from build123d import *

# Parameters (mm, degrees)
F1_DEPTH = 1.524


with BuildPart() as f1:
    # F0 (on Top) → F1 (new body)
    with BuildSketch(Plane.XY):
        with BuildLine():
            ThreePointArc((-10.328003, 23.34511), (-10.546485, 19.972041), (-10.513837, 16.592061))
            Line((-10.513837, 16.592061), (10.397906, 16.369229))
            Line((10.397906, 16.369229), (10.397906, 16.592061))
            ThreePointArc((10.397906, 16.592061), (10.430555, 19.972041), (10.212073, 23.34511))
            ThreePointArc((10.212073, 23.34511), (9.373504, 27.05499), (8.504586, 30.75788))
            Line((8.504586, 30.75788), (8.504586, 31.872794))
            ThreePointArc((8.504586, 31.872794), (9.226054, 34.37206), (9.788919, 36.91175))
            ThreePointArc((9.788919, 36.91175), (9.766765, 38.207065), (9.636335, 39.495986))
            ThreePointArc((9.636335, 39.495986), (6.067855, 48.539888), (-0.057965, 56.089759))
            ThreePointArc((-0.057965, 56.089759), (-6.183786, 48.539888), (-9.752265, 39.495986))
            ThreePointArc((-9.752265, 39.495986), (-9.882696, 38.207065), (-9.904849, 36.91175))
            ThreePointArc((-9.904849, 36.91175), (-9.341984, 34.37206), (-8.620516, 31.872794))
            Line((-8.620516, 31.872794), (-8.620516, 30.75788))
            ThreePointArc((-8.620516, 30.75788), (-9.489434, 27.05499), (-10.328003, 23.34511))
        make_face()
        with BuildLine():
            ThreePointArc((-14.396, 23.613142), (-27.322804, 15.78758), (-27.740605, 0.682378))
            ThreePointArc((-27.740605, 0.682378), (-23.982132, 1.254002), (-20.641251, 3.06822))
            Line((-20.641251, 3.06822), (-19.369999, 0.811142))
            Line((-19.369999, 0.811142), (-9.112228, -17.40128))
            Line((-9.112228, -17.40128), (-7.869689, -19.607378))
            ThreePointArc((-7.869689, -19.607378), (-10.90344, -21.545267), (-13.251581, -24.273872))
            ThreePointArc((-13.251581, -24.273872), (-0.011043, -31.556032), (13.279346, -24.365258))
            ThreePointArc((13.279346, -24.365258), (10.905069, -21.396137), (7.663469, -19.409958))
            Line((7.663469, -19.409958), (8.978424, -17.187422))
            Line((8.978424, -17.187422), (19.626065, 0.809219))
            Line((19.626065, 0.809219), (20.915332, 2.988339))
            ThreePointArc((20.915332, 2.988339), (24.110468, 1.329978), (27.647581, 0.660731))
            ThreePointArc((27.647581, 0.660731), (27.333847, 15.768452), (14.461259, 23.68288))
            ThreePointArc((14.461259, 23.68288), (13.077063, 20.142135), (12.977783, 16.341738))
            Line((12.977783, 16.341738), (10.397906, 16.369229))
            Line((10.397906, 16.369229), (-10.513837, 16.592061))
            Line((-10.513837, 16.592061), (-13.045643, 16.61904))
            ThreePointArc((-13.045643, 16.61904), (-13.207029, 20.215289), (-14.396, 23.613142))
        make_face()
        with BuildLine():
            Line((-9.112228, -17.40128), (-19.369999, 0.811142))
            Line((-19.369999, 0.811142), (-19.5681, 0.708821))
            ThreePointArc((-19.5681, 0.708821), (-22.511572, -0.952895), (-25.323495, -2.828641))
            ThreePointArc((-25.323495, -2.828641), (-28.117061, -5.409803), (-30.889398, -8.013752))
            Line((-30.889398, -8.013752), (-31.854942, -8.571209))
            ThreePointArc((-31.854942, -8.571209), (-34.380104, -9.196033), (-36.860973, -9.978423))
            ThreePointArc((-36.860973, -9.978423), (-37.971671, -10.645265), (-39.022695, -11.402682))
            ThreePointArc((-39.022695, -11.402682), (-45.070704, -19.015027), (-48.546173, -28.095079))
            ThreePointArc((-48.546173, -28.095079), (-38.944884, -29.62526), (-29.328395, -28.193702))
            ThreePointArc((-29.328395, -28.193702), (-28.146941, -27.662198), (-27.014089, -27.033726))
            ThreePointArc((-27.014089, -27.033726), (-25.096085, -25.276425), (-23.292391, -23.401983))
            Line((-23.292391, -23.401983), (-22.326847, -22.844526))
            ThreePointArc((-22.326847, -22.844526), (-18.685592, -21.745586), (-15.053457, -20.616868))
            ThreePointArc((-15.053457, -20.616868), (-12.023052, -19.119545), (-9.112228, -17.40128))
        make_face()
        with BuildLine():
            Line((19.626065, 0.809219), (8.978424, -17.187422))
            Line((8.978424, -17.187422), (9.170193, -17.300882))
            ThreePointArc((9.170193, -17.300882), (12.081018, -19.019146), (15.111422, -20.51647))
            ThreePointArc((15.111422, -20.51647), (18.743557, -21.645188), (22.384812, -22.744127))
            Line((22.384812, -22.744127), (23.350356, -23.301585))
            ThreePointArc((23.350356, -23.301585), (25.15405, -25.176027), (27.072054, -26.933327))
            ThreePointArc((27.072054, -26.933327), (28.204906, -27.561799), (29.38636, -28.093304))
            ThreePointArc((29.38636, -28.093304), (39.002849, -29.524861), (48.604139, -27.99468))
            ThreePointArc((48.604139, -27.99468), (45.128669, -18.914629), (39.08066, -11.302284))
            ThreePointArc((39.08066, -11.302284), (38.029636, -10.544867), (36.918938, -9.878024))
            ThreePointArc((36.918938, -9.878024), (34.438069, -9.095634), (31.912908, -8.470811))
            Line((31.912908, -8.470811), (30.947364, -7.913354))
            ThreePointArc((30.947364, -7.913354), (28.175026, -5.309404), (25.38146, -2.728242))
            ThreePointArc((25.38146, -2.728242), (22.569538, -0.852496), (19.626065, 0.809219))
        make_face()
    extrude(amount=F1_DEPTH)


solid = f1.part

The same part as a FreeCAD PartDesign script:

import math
import FreeCAD as App
import Part
import Sketcher
Q = App.Units.Quantity

doc = App.newDocument("Part")
body = doc.addObject("PartDesign::Body", "Body")

# Sketch on XY plane
sketch1 = doc.addObject("Sketcher::SketchObject", "Sketch")
body.addObject(sketch1)
sketch1.AttachmentSupport = (doc.XY_Plane, [""])
sketch1.MapMode = "FlatFace"
sketch1.addGeometry(Part.ArcOfCircle(Part.Circle(App.Vector(34.914766, 18.721014, 0), App.Vector(0, 0, 1), 45.478461), math.radians(174.164274), math.radians(182.68313)), False)
sketch1.addGeometry(Part.LineSegment(App.Vector(-10.513837, 16.592061, 0), App.Vector(-13.045643, 16.61904, 0)), False)
sketch1.addGeometry(Part.ArcOfCircle(Part.Circle(App.Vector(-25.365001, 17.86794, 0), App.Vector(0, 0, 1), 12.382501), math.radians(-5.788698), math.radians(27.644069)), False)
sketch1.addGeometry(Part.ArcOfCircle(Part.Circle(App.Vector(-13.686723, 7.852035, 0), App.Vector(0, 0, 1), 15.777058), math.radians(92.576669), math.radians(207.028626)), False)
sketch1.addGeometry(Part.ArcOfCircle(Part.Circle(App.Vector(-27.494308, 11.704895, 0), App.Vector(0, 0, 1), 11.025268), math.radians(-91.280057), math.radians(-51.568589)), False)
sketch1.addGeometry(Part.LineSegment(App.Vector(-20.641251, 3.06822, 0), App.Vector(-19.369999, 0.811142, 0)), False)
sketch1.addGeometry(Part.LineSegment(App.Vector(-19.369999, 0.811142, 0), App.Vector(-19.5681, 0.708821, 0)), False)
sketch1.addGeometry(Part.ArcOfCircle(Part.Circle(App.Vector(1.30249, -39.698, 0), App.Vector(0, 0, 1), 45.478486), math.radians(117.316876), math.radians(125.835727)), False)
sketch1.addGeometry(Part.ArcOfCircle(Part.Circle(App.Vector(288.507466, -345.287078, 0), App.Vector(0, 0, 1), 464.507969), math.radians(132.50233), math.radians(133.440628)), False)
sketch1.addGeometry(Part.LineSegment(App.Vector(-30.889398, -8.013752, 0), App.Vector(-31.854942, -8.571209, 0)), False)
sketch1.addGeometry(Part.ArcOfCircle(Part.Circle(App.Vector(-23.191889, -48.99705, 0), App.Vector(0, 0, 1), 41.343646), math.radians(102.095262), math.radians(109.306481)), False)
sketch1.addGeometry(Part.ArcOfCircle(Part.Circle(App.Vector(-29.458606, -23.566286, 0), App.Vector(0, 0, 1), 15.473366), math.radians(118.580569), math.radians(128.177523)), False)
sketch1.addGeometry(Part.ArcOfCircle(Part.Circle(App.Vector(-17.349656, -34.830659, 0), App.Vector(0, 0, 1), 31.915368), math.radians(132.771673), math.radians(167.816399)), False)
sketch1.addGeometry(Part.ArcOfCircle(Part.Circle(App.Vector(-38.781101, 2.28968, 0), App.Vector(0, 0, 1), 31.91536), math.radians(-107.816398), math.radians(-72.771665)), False)
sketch1.addGeometry(Part.ArcOfCircle(Part.Circle(App.Vector(-35.080299, -13.829229, 0), App.Vector(0, 0, 1), 15.473283), math.radians(-68.177568), math.radians(-58.580561)), False)
sketch1.addGeometry(Part.ArcOfCircle(Part.Circle(App.Vector(-53.970734, 4.313423, 0), App.Vector(0, 0, 1), 41.343735), math.radians(-49.306468), math.radians(-42.095266)), False)
sketch1.addGeometry(Part.LineSegment(App.Vector(-23.292391, -23.401983, 0), App.Vector(-22.326847, -22.844526, 0)), False)
sketch1.addGeometry(Part.ArcOfCircle(Part.Circle(App.Vector(-154.716692, 422.401247, 0), App.Vector(0, 0, 1), 464.511431), math.radians(-73.440625), math.radians(-72.502334)), False)
sketch1.addGeometry(Part.ArcOfCircle(Part.Circle(App.Vector(-33.670099, 20.87627, 0), App.Vector(0, 0, 1), 45.478125), math.radians(-65.835754), math.radians(-57.316835)), False)
sketch1.addGeometry(Part.LineSegment(App.Vector(-9.112228, -17.40128, 0), App.Vector(-7.869689, -19.607378, 0)), False)
sketch1.addGeometry(Part.ArcOfCircle(Part.Circle(App.Vector(-2.791593, -30.900702, 0), App.Vector(0, 0, 1), 12.382496), math.radians(114.21129), math.radians(147.644071)), False)
sketch1.addGeometry(Part.ArcOfCircle(Part.Circle(App.Vector(0.0433, -15.779067, 0), App.Vector(0, 0, 1), 15.777059), math.radians(-147.423332), math.radians(-32.971378)), False)
sketch1.addGeometry(Part.ArcOfCircle(Part.Circle(App.Vector(3.61042, -29.663214, 0), App.Vector(0, 0, 1), 11.025265), math.radians(28.719938), math.radians(68.431419)), False)
sketch1.addGeometry(Part.LineSegment(App.Vector(7.663469, -19.409958, 0), App.Vector(8.978424, -17.187422, 0)), False)
sketch1.addGeometry(Part.LineSegment(App.Vector(8.978424, -17.187422, 0), App.Vector(9.170193, -17.300882, 0)), False)
sketch1.addGeometry(Part.ArcOfCircle(Part.Circle(App.Vector(33.728297, 20.977099, 0), App.Vector(0, 0, 1), 45.478614), math.radians(-122.683119), math.radians(-114.164292)), False)
sketch1.addGeometry(Part.ArcOfCircle(Part.Circle(App.Vector(154.770415, 422.487993, 0), App.Vector(0, 0, 1), 464.497135), math.radians(-107.497673), math.radians(-106.559353)), False)
sketch1.addGeometry(Part.LineSegment(App.Vector(22.384812, -22.744127, 0), App.Vector(23.350356, -23.301585, 0)), False)
sketch1.addGeometry(Part.ArcOfCircle(Part.Circle(App.Vector(54.028561, 4.413688, 0), App.Vector(0, 0, 1), 41.343544), math.radians(-137.904743), math.radians(-130.693507)), False)
sketch1.addGeometry(Part.ArcOfCircle(Part.Circle(App.Vector(35.138328, -13.728714, 0), App.Vector(0, 0, 1), 15.473415), math.radians(-121.419419), math.radians(-111.822492)), False)
sketch1.addGeometry(Part.ArcOfCircle(Part.Circle(App.Vector(38.839064, 2.390092, 0), App.Vector(0, 0, 1), 31.915374), math.radians(-107.228326), math.radians(-72.183605)), False)
sketch1.addGeometry(Part.ArcOfCircle(Part.Circle(App.Vector(17.40761, -34.730269, 0), App.Vector(0, 0, 1), 31.915381), math.radians(12.183612), math.radians(47.228323)), False)
sketch1.addGeometry(Part.ArcOfCircle(Part.Circle(App.Vector(29.516498, -23.46599, 0), App.Vector(0, 0, 1), 15.473492), math.radians(51.822496), math.radians(61.419375)), False)
sketch1.addGeometry(Part.ArcOfCircle(Part.Circle(App.Vector(23.249913, -48.896466, 0), App.Vector(0, 0, 1), 41.343452), math.radians(70.693511), math.radians(77.904762)), False)
sketch1.addGeometry(Part.LineSegment(App.Vector(31.912908, -8.470811, 0), App.Vector(30.947364, -7.913354, 0)), False)
sketch1.addGeometry(Part.ArcOfCircle(Part.Circle(App.Vector(-288.449111, -345.186258, 0), App.Vector(0, 0, 1), 464.507395), math.radians(46.559371), math.radians(47.497671)), False)
sketch1.addGeometry(Part.ArcOfCircle(Part.Circle(App.Vector(-1.244336, -39.597305, 0), App.Vector(0, 0, 1), 45.478136), math.radians(54.164247), math.radians(62.683164)), False)
sketch1.addGeometry(Part.LineSegment(App.Vector(19.626065, 0.809219, 0), App.Vector(20.915332, 2.988339, 0)), False)
sketch1.addGeometry(Part.ArcOfCircle(Part.Circle(App.Vector(28.156586, 13.032753, 0), App.Vector(0, 0, 1), 12.382488), math.radians(-125.78872), math.radians(-92.355913)), False)
sketch1.addGeometry(Part.ArcOfCircle(Part.Circle(App.Vector(13.643422, 7.927032, 0), App.Vector(0, 0, 1), 15.777059), math.radians(-27.423326), math.radians(87.028622)), False)
sketch1.addGeometry(Part.ArcOfCircle(Part.Circle(App.Vector(23.883873, 17.958327, 0), App.Vector(0, 0, 1), 11.025251), math.radians(148.719922), math.radians(188.431452)), False)
sketch1.addGeometry(Part.LineSegment(App.Vector(12.977783, 16.341738, 0), App.Vector(10.397906, 16.369229, 0)), False)
sketch1.addGeometry(Part.LineSegment(App.Vector(10.397906, 16.369229, 0), App.Vector(10.397906, 16.592061, 0)), False)
sketch1.addGeometry(Part.ArcOfCircle(Part.Circle(App.Vector(-35.030515, 18.721026, 0), App.Vector(0, 0, 1), 45.47828), math.radians(-2.683155), math.radians(5.835734)), False)
sketch1.addGeometry(Part.ArcOfCircle(Part.Circle(App.Vector(-443.2803, -77.211092, 0), App.Vector(0, 0, 1), 464.507139), math.radians(12.502332), math.radians(13.440632)), False)
sketch1.addGeometry(Part.LineSegment(App.Vector(8.504586, 30.75788, 0), App.Vector(8.504586, 31.872794, 0)), False)
sketch1.addGeometry(Part.ArcOfCircle(Part.Circle(App.Vector(-30.836658, 44.583275, 0), App.Vector(0, 0, 1), 41.343558), math.radians(-17.904754), math.radians(-10.693521)), False)
sketch1.addGeometry(Part.ArcOfCircle(Part.Circle(App.Vector(-5.679862, 37.295032, 0), App.Vector(0, 0, 1), 15.473529), math.radians(-1.41937), math.radians(8.177485)), False)
sketch1.addGeometry(Part.ArcOfCircle(Part.Circle(App.Vector(-21.489423, 32.440565, 0), App.Vector(0, 0, 1), 31.915385), math.radians(12.771679), math.radians(47.816387)), False)
sketch1.addGeometry(Part.ArcOfCircle(Part.Circle(App.Vector(21.373477, 32.440574, 0), App.Vector(0, 0, 1), 31.915367), math.radians(132.183603), math.radians(167.228331)), False)
sketch1.addGeometry(Part.ArcOfCircle(Part.Circle(App.Vector(5.563648, 37.295048, 0), App.Vector(0, 0, 1), 15.473245), math.radians(171.822427), math.radians(181.419459)), False)
sketch1.addGeometry(Part.ArcOfCircle(Part.Circle(App.Vector(30.720728, 44.583275, 0), App.Vector(0, 0, 1), 41.343558), math.radians(-169.306479), math.radians(-162.095246)), False)
sketch1.addGeometry(Part.LineSegment(App.Vector(-8.620516, 31.872794, 0), App.Vector(-8.620516, 30.75788, 0)), False)
sketch1.addGeometry(Part.ArcOfCircle(Part.Circle(App.Vector(443.16437, -77.211092, 0), App.Vector(0, 0, 1), 464.507139), math.radians(166.559368), math.radians(167.497668)), False)
sketch1.addConstraint(Sketcher.Constraint("Coincident", 0, 2, 1, 1))
sketch1.addConstraint(Sketcher.Constraint("Coincident", 1, 2, 2, 1))
sketch1.addConstraint(Sketcher.Constraint("Coincident", 2, 2, 3, 1))
sketch1.addConstraint(Sketcher.Constraint("Coincident", 3, 2, 4, 1))
sketch1.addConstraint(Sketcher.Constraint("Coincident", 4, 2, 5, 1))
sketch1.addConstraint(Sketcher.Constraint("Coincident", 5, 2, 6, 1))
sketch1.addConstraint(Sketcher.Constraint("Coincident", 6, 2, 7, 1))
sketch1.addConstraint(Sketcher.Constraint("Coincident", 7, 2, 8, 1))
sketch1.addConstraint(Sketcher.Constraint("Coincident", 8, 2, 9, 1))
sketch1.addConstraint(Sketcher.Constraint("Coincident", 9, 2, 10, 1))
sketch1.addConstraint(Sketcher.Constraint("Coincident", 10, 2, 11, 1))
sketch1.addConstraint(Sketcher.Constraint("Coincident", 11, 2, 12, 1))
sketch1.addConstraint(Sketcher.Constraint("Coincident", 12, 2, 13, 1))
sketch1.addConstraint(Sketcher.Constraint("Coincident", 13, 2, 14, 1))
sketch1.addConstraint(Sketcher.Constraint("Coincident", 14, 2, 15, 1))
sketch1.addConstraint(Sketcher.Constraint("Coincident", 15, 2, 16, 1))
sketch1.addConstraint(Sketcher.Constraint("Coincident", 16, 2, 17, 1))
sketch1.addConstraint(Sketcher.Constraint("Coincident", 17, 2, 18, 1))
sketch1.addConstraint(Sketcher.Constraint("Coincident", 18, 2, 19, 1))
sketch1.addConstraint(Sketcher.Constraint("Coincident", 19, 2, 20, 1))
sketch1.addConstraint(Sketcher.Constraint("Coincident", 20, 2, 21, 1))
sketch1.addConstraint(Sketcher.Constraint("Coincident", 21, 2, 22, 1))
sketch1.addConstraint(Sketcher.Constraint("Coincident", 22, 2, 23, 1))
sketch1.addConstraint(Sketcher.Constraint("Coincident", 23, 2, 24, 1))
sketch1.addConstraint(Sketcher.Constraint("Coincident", 24, 2, 25, 1))
sketch1.addConstraint(Sketcher.Constraint("Coincident", 25, 2, 26, 1))
sketch1.addConstraint(Sketcher.Constraint("Coincident", 26, 2, 27, 1))
sketch1.addConstraint(Sketcher.Constraint("Coincident", 27, 2, 28, 1))
sketch1.addConstraint(Sketcher.Constraint("Coincident", 28, 2, 29, 1))
sketch1.addConstraint(Sketcher.Constraint("Coincident", 29, 2, 30, 1))
sketch1.addConstraint(Sketcher.Constraint("Coincident", 30, 2, 31, 1))
sketch1.addConstraint(Sketcher.Constraint("Coincident", 31, 2, 32, 1))
sketch1.addConstraint(Sketcher.Constraint("Coincident", 32, 2, 33, 1))
sketch1.addConstraint(Sketcher.Constraint("Coincident", 33, 2, 34, 1))
sketch1.addConstraint(Sketcher.Constraint("Coincident", 34, 2, 35, 1))
sketch1.addConstraint(Sketcher.Constraint("Coincident", 35, 2, 36, 1))
sketch1.addConstraint(Sketcher.Constraint("Coincident", 36, 2, 37, 1))
sketch1.addConstraint(Sketcher.Constraint("Coincident", 37, 2, 38, 1))
sketch1.addConstraint(Sketcher.Constraint("Coincident", 38, 2, 39, 1))
sketch1.addConstraint(Sketcher.Constraint("Coincident", 39, 2, 40, 1))
sketch1.addConstraint(Sketcher.Constraint("Coincident", 40, 2, 41, 1))
sketch1.addConstraint(Sketcher.Constraint("Coincident", 41, 2, 42, 1))
sketch1.addConstraint(Sketcher.Constraint("Coincident", 42, 2, 43, 1))
sketch1.addConstraint(Sketcher.Constraint("Coincident", 43, 2, 44, 1))
sketch1.addConstraint(Sketcher.Constraint("Coincident", 44, 2, 45, 1))
sketch1.addConstraint(Sketcher.Constraint("Coincident", 45, 2, 46, 1))
sketch1.addConstraint(Sketcher.Constraint("Coincident", 46, 2, 47, 1))
sketch1.addConstraint(Sketcher.Constraint("Coincident", 47, 2, 48, 1))
sketch1.addConstraint(Sketcher.Constraint("Coincident", 48, 2, 49, 1))
sketch1.addConstraint(Sketcher.Constraint("Coincident", 49, 2, 50, 1))
sketch1.addConstraint(Sketcher.Constraint("Coincident", 50, 2, 51, 1))
sketch1.addConstraint(Sketcher.Constraint("Coincident", 51, 2, 52, 1))
sketch1.addConstraint(Sketcher.Constraint("Coincident", 52, 2, 53, 1))
sketch1.addConstraint(Sketcher.Constraint("Coincident", 53, 2, 0, 1))
sketch1.addConstraint(Sketcher.Constraint("Vertical", 42))
sketch1.addConstraint(Sketcher.Constraint("Vertical", 45))
sketch1.addConstraint(Sketcher.Constraint("Vertical", 52))
sketch1.addConstraint(Sketcher.Constraint("Radius", 2, Q("0.4875001 in")))
sketch1.addConstraint(Sketcher.Constraint("Radius", 20, Q("0.4874999 in")))
sketch1.addConstraint(Sketcher.Constraint("Radius", 0, 45.478461))
sketch1.addConstraint(Sketcher.Constraint("Radius", 3, 15.777058))
sketch1.addConstraint(Sketcher.Constraint("Radius", 4, 11.025268))
sketch1.addConstraint(Sketcher.Constraint("Radius", 8, 464.507969))
sketch1.addConstraint(Sketcher.Constraint("Radius", 12, 31.915368))
sketch1.addConstraint(Sketcher.Constraint("Radius", 13, 31.91536))
sketch1.addConstraint(Sketcher.Constraint("Radius", 17, 464.511431))
sketch1.addConstraint(Sketcher.Constraint("Radius", 21, 15.777059))
sketch1.addConstraint(Sketcher.Constraint("Radius", 31, 31.915381))
sketch1.addConstraint(Sketcher.Constraint("Radius", 32, 15.473492))
sketch1.addConstraint(Sketcher.Constraint("Radius", 39, 15.777059))
sketch1.addConstraint(Sketcher.Constraint("Radius", 40, 11.025251))
sketch1.addConstraint(Sketcher.Constraint("Radius", 43, 45.47828))
sketch1.addConstraint(Sketcher.Constraint("Radius", 44, 464.507139))
sketch1.addConstraint(Sketcher.Constraint("Radius", 46, 41.343558))
sketch1.addConstraint(Sketcher.Constraint("Radius", 47, 15.473529))
sketch1.addConstraint(Sketcher.Constraint("Radius", 51, 41.343558))
sketch1.addConstraint(Sketcher.Constraint("Radius", 53, 464.507139))
sketch1.addConstraint(Sketcher.Constraint("DistanceX", -1, 1, 34, 2, Q("1.2184002 in")))
sketch1.addConstraint(Sketcher.Constraint("Radius", 7, 45.478486))
sketch1.addConstraint(Sketcher.Constraint("Radius", 10, 41.343646))
sketch1.addConstraint(Sketcher.Constraint("Radius", 11, 15.473366))
sketch1.addConstraint(Sketcher.Constraint("Radius", 14, 15.473283))
sketch1.addConstraint(Sketcher.Constraint("Radius", 15, 41.343735))
sketch1.addConstraint(Sketcher.Constraint("Radius", 18, 45.478125))
sketch1.addConstraint(Sketcher.Constraint("Radius", 22, 11.025265))
sketch1.addConstraint(Sketcher.Constraint("Radius", 25, 45.478614))
sketch1.addConstraint(Sketcher.Constraint("Radius", 26, 464.497135))
sketch1.addConstraint(Sketcher.Constraint("Radius", 28, 41.343544))
sketch1.addConstraint(Sketcher.Constraint("Radius", 29, 15.473415))
sketch1.addConstraint(Sketcher.Constraint("Radius", 30, 31.915374))
sketch1.addConstraint(Sketcher.Constraint("Radius", 33, 41.343452))
sketch1.addConstraint(Sketcher.Constraint("Radius", 35, 464.507395))
sketch1.addConstraint(Sketcher.Constraint("Radius", 36, 45.478136))
sketch1.addConstraint(Sketcher.Constraint("Radius", 38, 12.382488))
sketch1.addConstraint(Sketcher.Constraint("Radius", 48, 31.915385))
sketch1.addConstraint(Sketcher.Constraint("Radius", 49, 31.915367))
sketch1.addConstraint(Sketcher.Constraint("Radius", 50, 15.473245))
sketch1.addConstraint(Sketcher.Constraint("DistanceX", 2, 3, -1, 1, 25.365001))
sketch1.addConstraint(Sketcher.Constraint("DistanceY", 7, 3, -1, 1, 39.698))
sketch1.addConstraint(Sketcher.Constraint("DistanceX", 13, 3, -1, 1, 38.781101))
sketch1.addConstraint(Sketcher.Constraint("DistanceX", 14, 3, -1, 1, 35.080299))
sketch1.addConstraint(Sketcher.Constraint("DistanceX", 18, 3, -1, 1, 33.670099))
sketch1.addConstraint(Sketcher.Constraint("DistanceY", 20, 3, -1, 1, 30.900702))
sketch1.addConstraint(Sketcher.Constraint("DistanceX", -1, 1, 21, 3, 0.0433))
sketch1.addConstraint(Sketcher.Constraint("DistanceY", -1, 1, 25, 3, 20.977099))
sketch1.addConstraint(Sketcher.Constraint("DistanceX", -1, 1, 32, 3, 29.516498))
sketch1.addConstraint(Sketcher.Constraint("DistanceX", 44, 3, -1, 1, 443.2803))
sketch1.addConstraint(Sketcher.Constraint("DistanceX", 2, 2, -1, 1, 14.396))
sketch1.addConstraint(Sketcher.Constraint("DistanceX", 5, 2, -1, 1, 19.369999))
sketch1.addConstraint(Sketcher.Constraint("DistanceX", 6, 2, -1, 1, 19.5681))
sketch1.addConstraint(Sketcher.Constraint("DistanceX", 8, 2, -1, 1, 30.889398))
sketch1.addConstraint(Sketcher.Constraint("DistanceY", 13, 2, -1, 1, 28.193702))
sketch1.addConstraint(Sketcher.Constraint("Distance", 1, 2.53195))
sketch1.addConstraint(Sketcher.Constraint("Distance", 5, 2.59046))
sketch1.addConstraint(Sketcher.Constraint("Distance", 19, 2.53195))
sketch1.addConstraint(Sketcher.Constraint("Distance", 24, 0.222819))
sketch1.addConstraint(Sketcher.Constraint("Distance", 37, 2.531951))
sketch1.addConstraint(Sketcher.Constraint("DistanceY", 42, 1, 42, 2, 0.222832))
sketch1.addConstraint(Sketcher.Constraint("DistanceY", 45, 1, 45, 2, 1.114914))
sketch1.addConstraint(Sketcher.Constraint("DistanceY", 52, 2, 52, 1, 1.114914))
sketch1.addConstraint(Sketcher.Constraint("DistanceY", -1, 1, 2, 3, 17.86794))
sketch1.addConstraint(Sketcher.Constraint("DistanceX", -1, 1, 7, 3, 1.30249))
sketch1.addConstraint(Sketcher.Constraint("DistanceY", 8, 3, -1, 1, 345.287078))
sketch1.addConstraint(Sketcher.Constraint("DistanceX", 10, 3, -1, 1, 23.191889))
sketch1.addConstraint(Sketcher.Constraint("DistanceY", 10, 3, -1, 1, 48.99705))
sketch1.addConstraint(Sketcher.Constraint("DistanceY", 12, 3, -1, 1, 34.830659))
sketch1.addConstraint(Sketcher.Constraint("DistanceY", -1, 1, 13, 3, 2.28968))
sketch1.addConstraint(Sketcher.Constraint("DistanceY", -1, 1, 18, 3, 20.87627))
sketch1.addConstraint(Sketcher.Constraint("DistanceX", -1, 1, 22, 3, 3.61042))
sketch1.addConstraint(Sketcher.Constraint("DistanceX", -1, 1, 28, 3, 54.028561))
sketch1.addConstraint(Sketcher.Constraint("DistanceY", -1, 1, 28, 3, 4.413688))
sketch1.addConstraint(Sketcher.Constraint("DistanceX", -1, 1, 29, 3, 35.138328))
sketch1.addConstraint(Sketcher.Constraint("DistanceX", -1, 1, 31, 3, 17.40761))
sketch1.addConstraint(Sketcher.Constraint("DistanceY", 31, 3, -1, 1, 34.730269))
sketch1.addConstraint(Sketcher.Constraint("DistanceY", 32, 3, -1, 1, 23.46599))
sketch1.addConstraint(Sketcher.Constraint("DistanceX", 35, 3, -1, 1, 288.449111))
sketch1.addConstraint(Sketcher.Constraint("DistanceY", 44, 3, -1, 1, 77.211092))
sketch1.addConstraint(Sketcher.Constraint("DistanceX", 46, 3, -1, 1, 30.836658))
sketch1.addConstraint(Sketcher.Constraint("DistanceY", -1, 1, 47, 3, 37.295032))
sketch1.addConstraint(Sketcher.Constraint("DistanceY", -1, 1, 50, 3, 37.295048))
sketch1.addConstraint(Sketcher.Constraint("DistanceX", -1, 1, 51, 3, 30.720728))
sketch1.addConstraint(Sketcher.Constraint("DistanceX", -1, 1, 53, 3, 443.16437))
sketch1.addConstraint(Sketcher.Constraint("DistanceY", 53, 3, -1, 1, 77.211092))
sketch1.addConstraint(Sketcher.Constraint("DistanceY", -1, 1, 0, 2, 16.592061))
sketch1.addConstraint(Sketcher.Constraint("DistanceY", -1, 1, 1, 2, 16.61904))
sketch1.addConstraint(Sketcher.Constraint("DistanceY", -1, 1, 3, 2, 0.682378))
sketch1.addConstraint(Sketcher.Constraint("DistanceX", 4, 2, -1, 1, 20.641251))
sketch1.addConstraint(Sketcher.Constraint("DistanceY", -1, 1, 4, 2, 3.06822))
sketch1.addConstraint(Sketcher.Constraint("DistanceY", 7, 2, -1, 1, 2.828641))
sketch1.addConstraint(Sketcher.Constraint("DistanceY", 9, 2, -1, 1, 8.571209))
sketch1.addConstraint(Sketcher.Constraint("DistanceY", 12, 2, -1, 1, 28.095079))
sketch1.addConstraint(Sketcher.Constraint("DistanceX", 14, 2, -1, 1, 27.014089))
sketch1.addConstraint(Sketcher.Constraint("DistanceX", 15, 2, -1, 1, 23.292391))
sketch1.addConstraint(Sketcher.Constraint("DistanceY", 17, 2, -1, 1, 20.616868))
sketch1.addConstraint(Sketcher.Constraint("DistanceY", 18, 2, -1, 1, 17.40128))
sketch1.addConstraint(Sketcher.Constraint("DistanceX", 19, 2, -1, 1, 7.869689))
sketch1.addConstraint(Sketcher.Constraint("DistanceX", 20, 2, -1, 1, 13.251581))
sketch1.addConstraint(Sketcher.Constraint("DistanceX", -1, 1, 22, 2, 7.663469))
sketch1.addConstraint(Sketcher.Constraint("DistanceY", 22, 2, -1, 1, 19.409958))
sketch1.addConstraint(Sketcher.Constraint("DistanceX", -1, 1, 25, 2, 15.111422))
sketch1.addConstraint(Sketcher.Constraint("DistanceY", 25, 2, -1, 1, 20.51647))
sketch1.addConstraint(Sketcher.Constraint("DistanceX", -1, 1, 29, 2, 29.38636))
sketch1.addConstraint(Sketcher.Constraint("DistanceX", -1, 1, 30, 2, 48.604139))
sketch1.addConstraint(Sketcher.Constraint("DistanceX", -1, 1, 33, 2, 31.912908))
sketch1.addConstraint(Sketcher.Constraint("DistanceY", 33, 2, -1, 1, 8.470811))
sketch1.addConstraint(Sketcher.Constraint("DistanceX", -1, 1, 35, 2, 25.38146))
sketch1.addConstraint(Sketcher.Constraint("DistanceY", -1, 1, 36, 2, 0.809219))
sketch1.addConstraint(Sketcher.Constraint("DistanceX", -1, 1, 37, 2, 20.915332))
sketch1.addConstraint(Sketcher.Constraint("DistanceY", -1, 1, 37, 2, 2.988339))
sketch1.addConstraint(Sketcher.Constraint("DistanceX", -1, 1, 38, 2, 27.647581))
sketch1.addConstraint(Sketcher.Constraint("DistanceY", -1, 1, 38, 2, 0.660731))
sketch1.addConstraint(Sketcher.Constraint("DistanceX", -1, 1, 39, 2, 14.461259))
sketch1.addConstraint(Sketcher.Constraint("DistanceY", -1, 1, 39, 2, 23.68288))
sketch1.addConstraint(Sketcher.Constraint("DistanceY", -1, 1, 41, 2, 16.369229))
sketch1.addConstraint(Sketcher.Constraint("DistanceY", -1, 1, 43, 2, 23.34511))
sketch1.addConstraint(Sketcher.Constraint("DistanceX", -1, 1, 46, 2, 9.788919))
sketch1.addConstraint(Sketcher.Constraint("DistanceY", -1, 1, 46, 2, 36.91175))
sketch1.addConstraint(Sketcher.Constraint("DistanceY", -1, 1, 48, 2, 56.089759))
sketch1.addConstraint(Sketcher.Constraint("DistanceX", 50, 2, -1, 1, 9.904849))
sketch1.addConstraint(Sketcher.Constraint("DistanceY", -1, 1, 50, 2, 36.91175))
sketch1.addConstraint(Sketcher.Constraint("DistanceY", -1, 1, 53, 2, 23.34511))
sketch1.addConstraint(Sketcher.Constraint("Distance", 16, 1.114914))
sketch1.addConstraint(Sketcher.Constraint("Distance", 23, 2.582397))
sketch1.addConstraint(Sketcher.Constraint("Distance", 27, 1.114915))
sketch1.addConstraint(Sketcher.Constraint("Distance", 34, 1.114914))
sketch1.addConstraint(Sketcher.Constraint("Distance", 41, 2.580023))
sketch1.addConstraint(Sketcher.Constraint("DistanceX", 3, 3, -1, 1, 13.686723))
sketch1.addConstraint(Sketcher.Constraint("DistanceX", 11, 3, -1, 1, 29.458606))
sketch1.addConstraint(Sketcher.Constraint("DistanceY", 11, 3, -1, 1, 23.566286))
sketch1.addConstraint(Sketcher.Constraint("DistanceX", 15, 3, -1, 1, 53.970734))
sketch1.addConstraint(Sketcher.Constraint("DistanceX", 17, 3, -1, 1, 154.716692))
sketch1.addConstraint(Sketcher.Constraint("DistanceX", -1, 1, 26, 3, 154.770415))
sketch1.addConstraint(Sketcher.Constraint("DistanceY", 29, 3, -1, 1, 13.728714))
sketch1.addConstraint(Sketcher.Constraint("DistanceX", -1, 1, 33, 3, 23.249913))
sketch1.addConstraint(Sketcher.Constraint("DistanceX", -1, 1, 40, 3, 23.883873))
sketch1.addConstraint(Sketcher.Constraint("DistanceX", 43, 3, -1, 1, 35.030515))
sketch1.addConstraint(Sketcher.Constraint("DistanceX", 48, 3, -1, 1, 21.489423))
sketch1.addConstraint(Sketcher.Constraint("DistanceY", -1, 1, 48, 3, 32.440565))
sketch1.addConstraint(Sketcher.Constraint("DistanceX", -1, 1, 49, 3, 21.373477))
sketch1.addConstraint(Sketcher.Constraint("DistanceX", -1, 1, 23, 2, 8.978424))
sketch1.addConstraint(Sketcher.Constraint("DistanceX", -1, 1, 27, 2, 23.350356))
pad1 = doc.addObject("PartDesign::Pad", "Pad")
body.addObject(pad1)
pad1.Profile = sketch1
pad1.Length = Q("0.06 in")

doc.recompute()
